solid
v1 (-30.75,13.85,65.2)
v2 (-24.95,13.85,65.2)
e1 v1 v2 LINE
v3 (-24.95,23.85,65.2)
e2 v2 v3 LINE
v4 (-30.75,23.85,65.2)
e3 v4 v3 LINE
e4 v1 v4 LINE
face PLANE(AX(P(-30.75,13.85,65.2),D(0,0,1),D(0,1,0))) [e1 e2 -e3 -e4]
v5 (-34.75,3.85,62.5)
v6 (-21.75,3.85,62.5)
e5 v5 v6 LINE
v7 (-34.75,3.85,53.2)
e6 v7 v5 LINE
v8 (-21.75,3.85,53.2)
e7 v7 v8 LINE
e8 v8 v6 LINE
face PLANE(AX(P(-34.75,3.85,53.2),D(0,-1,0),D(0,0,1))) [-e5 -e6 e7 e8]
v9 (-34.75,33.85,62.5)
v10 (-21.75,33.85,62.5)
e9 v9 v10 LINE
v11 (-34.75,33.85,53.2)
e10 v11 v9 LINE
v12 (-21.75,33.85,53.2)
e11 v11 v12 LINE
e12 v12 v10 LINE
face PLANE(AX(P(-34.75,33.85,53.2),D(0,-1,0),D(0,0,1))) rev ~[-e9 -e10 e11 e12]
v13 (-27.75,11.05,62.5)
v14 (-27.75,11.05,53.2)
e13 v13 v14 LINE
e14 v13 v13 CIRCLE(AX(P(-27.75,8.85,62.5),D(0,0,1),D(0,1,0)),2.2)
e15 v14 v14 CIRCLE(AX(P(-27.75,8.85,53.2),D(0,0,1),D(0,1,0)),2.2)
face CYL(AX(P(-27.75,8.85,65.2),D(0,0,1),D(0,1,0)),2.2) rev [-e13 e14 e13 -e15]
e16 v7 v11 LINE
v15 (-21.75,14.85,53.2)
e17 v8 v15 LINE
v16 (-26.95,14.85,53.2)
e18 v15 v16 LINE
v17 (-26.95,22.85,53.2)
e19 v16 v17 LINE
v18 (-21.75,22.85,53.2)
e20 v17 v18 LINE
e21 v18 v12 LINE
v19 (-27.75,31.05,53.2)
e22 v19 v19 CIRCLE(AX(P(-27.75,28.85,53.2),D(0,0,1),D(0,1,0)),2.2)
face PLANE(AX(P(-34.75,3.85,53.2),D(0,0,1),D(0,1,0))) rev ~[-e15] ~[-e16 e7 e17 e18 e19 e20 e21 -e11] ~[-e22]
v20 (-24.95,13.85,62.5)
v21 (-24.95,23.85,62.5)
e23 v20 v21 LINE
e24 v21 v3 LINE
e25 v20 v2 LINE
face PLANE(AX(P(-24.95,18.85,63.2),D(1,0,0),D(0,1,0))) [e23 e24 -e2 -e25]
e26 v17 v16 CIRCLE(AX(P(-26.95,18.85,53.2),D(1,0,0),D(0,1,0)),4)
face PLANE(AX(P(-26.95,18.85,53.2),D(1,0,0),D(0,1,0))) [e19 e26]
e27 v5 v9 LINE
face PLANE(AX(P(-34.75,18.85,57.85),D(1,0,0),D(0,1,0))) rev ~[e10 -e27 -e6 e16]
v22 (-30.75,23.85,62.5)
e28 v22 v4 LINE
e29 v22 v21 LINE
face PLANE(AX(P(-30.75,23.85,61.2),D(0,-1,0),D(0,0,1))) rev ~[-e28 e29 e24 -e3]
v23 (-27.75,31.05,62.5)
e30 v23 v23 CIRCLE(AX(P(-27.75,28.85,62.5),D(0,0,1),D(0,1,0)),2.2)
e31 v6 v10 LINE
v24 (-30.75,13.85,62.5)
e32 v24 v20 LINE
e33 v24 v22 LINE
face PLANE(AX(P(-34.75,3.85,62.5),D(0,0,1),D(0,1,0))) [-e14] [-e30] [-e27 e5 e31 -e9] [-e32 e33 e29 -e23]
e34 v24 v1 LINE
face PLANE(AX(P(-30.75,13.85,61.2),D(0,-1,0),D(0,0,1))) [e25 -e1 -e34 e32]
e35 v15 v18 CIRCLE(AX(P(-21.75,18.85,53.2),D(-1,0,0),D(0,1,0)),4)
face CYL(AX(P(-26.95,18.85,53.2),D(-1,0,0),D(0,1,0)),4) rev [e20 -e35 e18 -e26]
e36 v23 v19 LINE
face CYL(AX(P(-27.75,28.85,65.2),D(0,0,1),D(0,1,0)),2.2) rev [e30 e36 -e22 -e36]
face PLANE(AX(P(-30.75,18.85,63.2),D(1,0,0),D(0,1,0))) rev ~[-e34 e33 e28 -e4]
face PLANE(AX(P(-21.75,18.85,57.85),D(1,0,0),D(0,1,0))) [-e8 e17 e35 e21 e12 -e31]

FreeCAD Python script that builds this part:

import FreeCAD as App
import Part
import Sketcher
from FreeCAD import Vector

doc = App.newDocument("Part")
body = doc.addObject("PartDesign::Body", "Body")

# Sketch on XY plane
sketch1 = doc.addObject("Sketcher::SketchObject", "Sketch")
body.addObject(sketch1)
sketch1.AttachmentSupport = (doc.XY_Plane, [""])
sketch1.MapMode = "FlatFace"
sketch1.AttachmentOffset = App.Placement(Vector(0, 0, 2), App.Rotation())
sketch1.addGeometry([
    Part.LineSegment(Vector(-5, 12, 0), Vector(-5, 8, 0)),
    Part.LineSegment(Vector(-5, 8, 0), Vector(5, 8, 0)),
    Part.LineSegment(Vector(5, 8, 0), Vector(5, 12, 0)),
    Part.LineSegment(Vector(5, 12, 0), Vector(-5, 12, 0)),
], False)
sketch1.addConstraint([
    Sketcher.Constraint("Coincident", 0, 2, 1, 1),
    Sketcher.Constraint("Coincident", 1, 2, 2, 1),
    Sketcher.Constraint("Coincident", 2, 2, 3, 1),
    Sketcher.Constraint("Coincident", 3, 2, 0, 1),
    Sketcher.Constraint("Vertical", 0),
    Sketcher.Constraint("Horizontal", 1),
    Sketcher.Constraint("Vertical", 2),
    Sketcher.Constraint("Horizontal", 3),
    Sketcher.Constraint("DistanceX", 1, 1, 1, 2, 10.0),
    Sketcher.Constraint("DistanceY", 0, 2, 0, 1, 4.0),
    Sketcher.Constraint("DistanceX", 0, 2, -1, 1, 5.0),
    Sketcher.Constraint("DistanceY", -1, 1, 0, 2, 8.0),
])
pad1 = doc.addObject("PartDesign::Pad", "Pad")
body.addObject(pad1)
pad1.Profile = sketch1
pad1.Length = 5.8
body2 = doc.addObject("PartDesign::Body", "Body001")

# Sketch on XZ plane
sketch2 = doc.addObject("Sketcher::SketchObject", "Sketch001")
body2.addObject(sketch2)
sketch2.AttachmentSupport = (doc.getObject("XZ_Plane001"), [""])
sketch2.MapMode = "FlatFace"
sketch2.AttachmentOffset = App.Placement(Vector(0, 0, -12), App.Rotation())
sketch2.addGeometry(Part.Circle(Vector(-10, 5, 0), Vector(0, 0, 1), 2.2), False)
sketch2.addConstraint([
    Sketcher.Constraint("Diameter", 0, 4.4),
    Sketcher.Constraint("DistanceX", 0, 3, -1, 1, 10.0),
    Sketcher.Constraint("DistanceY", -1, 1, 0, 3, 5.0),
])
pad2 = doc.addObject("PartDesign::Pad", "Pad001")
body2.addObject(pad2)
pad2.Profile = sketch2
pad2.Length = 25
body3 = doc.addObject("PartDesign::Body", "Body002")

# Sketch on XZ plane
sketch3 = doc.addObject("Sketcher::SketchObject", "Sketch002")
body3.addObject(sketch3)
sketch3.AttachmentSupport = (doc.getObject("XZ_Plane002"), [""])
sketch3.MapMode = "FlatFace"
sketch3.AttachmentOffset = App.Placement(Vector(0, 0, -12), App.Rotation())
sketch3.addGeometry(Part.Circle(Vector(10, 5, 0), Vector(0, 0, 1), 2.2), False)
sketch3.addConstraint([
    Sketcher.Constraint("Diameter", 0, 4.4),
    Sketcher.Constraint("DistanceX", -1, 1, 0, 3, 10.0),
    Sketcher.Constraint("DistanceY", -1, 1, 0, 3, 5.0),
])
pad3 = doc.addObject("PartDesign::Pad", "Pad002")
body3.addObject(pad3)
pad3.Profile = sketch3
pad3.Length = 25
body4 = doc.addObject("PartDesign::Body", "Body003")

# Sketch on XY plane
sketch4 = doc.addObject("Sketcher::SketchObject", "Sketch003")
body4.addObject(sketch4)
sketch4.AttachmentSupport = (doc.getObject("XY_Plane003"), [""])
sketch4.MapMode = "FlatFace"
sketch4.AttachmentOffset = App.Placement(Vector(0, 0, 5.8), App.Rotation())
sketch4.addGeometry(Part.Circle(Vector(0, 0, 0), Vector(0, 0, 1), 4), False)
sketch4.addConstraint([
    Sketcher.Constraint("Coincident", 0, 3, -1, 1),
    Sketcher.Constraint("Diameter", 0, 8.0),
])
pad4 = doc.addObject("PartDesign::Pad", "Pad003")
body4.addObject(pad4)
pad4.Profile = sketch4
pad4.Length = 6
body5 = doc.addObject("PartDesign::Body", "Body004")

# Sketch on XY plane
sketch5 = doc.addObject("Sketcher::SketchObject", "Sketch004")
body5.addObject(sketch5)
sketch5.AttachmentSupport = (doc.getObject("XY_Plane004"), [""])
sketch5.MapMode = "FlatFace"
sketch5.AttachmentOffset = App.Placement(Vector(0, 0, -2), App.Rotation())
sketch5.addGeometry([
    Part.LineSegment(Vector(-15, 9, 0), Vector(-15, 0, 0)),
    Part.LineSegment(Vector(-15, 0, 0), Vector(15, 0, 0)),
    Part.LineSegment(Vector(15, 0, 0), Vector(15, 9, 0)),
    Part.LineSegment(Vector(15, 9, 0), Vector(-15, 9, 0)),
], False)
sketch5.addConstraint([
    Sketcher.Constraint("Coincident", 0, 2, 1, 1),
    Sketcher.Constraint("Coincident", 1, 2, 2, 1),
    Sketcher.Constraint("Coincident", 2, 2, 3, 1),
    Sketcher.Constraint("Coincident", 3, 2, 0, 1),
    Sketcher.Constraint("Vertical", 0),
    Sketcher.Constraint("Horizontal", 1),
    Sketcher.Constraint("Vertical", 2),
    Sketcher.Constraint("Horizontal", 3),
    Sketcher.Constraint("Symmetric", 0, 2, 1, 2, -1, 1),
    Sketcher.Constraint("DistanceX", 1, 1, 1, 2, 30.0),
    Sketcher.Constraint("DistanceY", 0, 2, 0, 1, 9.3),
])
pad5 = doc.addObject("PartDesign::Pad", "Pad004")
body5.addObject(pad5)
pad5.Profile = sketch5
pad5.Length = 13
doc.recompute()

boolean = doc.addObject("PartDesign::Boolean", "Boolean")
body5.addObject(boolean)
boolean.Type = "Cut"
boolean.addObjects([body4])
doc.recompute()

boolean2 = doc.addObject("PartDesign::Boolean", "Boolean001")
body5.addObject(boolean2)
boolean2.Type = "Cut"
boolean2.addObjects([body3])
doc.recompute()

boolean3 = doc.addObject("PartDesign::Boolean", "Boolean002")
body5.addObject(boolean3)
boolean3.Type = "Cut"
boolean3.addObjects([body2])
doc.recompute()

boolean4 = doc.addObject("PartDesign::Boolean", "Boolean003")
body5.addObject(boolean4)
boolean4.Type = "Fuse"
boolean4.addObjects([body])
body6 = doc.addObject("PartDesign::Body", "Body005")
doc.recompute()

body5.Placement = App.Placement(Vector(0, 0, 0), App.Rotation(Vector(1, 0, 0), 90))
boolean5 = doc.addObject("PartDesign::Boolean", "Boolean004")
body6.addObject(boolean5)
boolean5.Type = "Fuse"
boolean5.addObjects([body5])
body7 = doc.addObject("PartDesign::Body", "Body006")
doc.recompute()

body6.Placement = App.Placement(Vector(-32.75, 18.85, 53.2), App.Rotation(Vector(0, 0, 1), 90))
boolean6 = doc.addObject("PartDesign::Boolean", "Boolean005")
body7.addObject(boolean6)
boolean6.Type = "Fuse"
boolean6.addObjects([body6])

doc.recompute()
